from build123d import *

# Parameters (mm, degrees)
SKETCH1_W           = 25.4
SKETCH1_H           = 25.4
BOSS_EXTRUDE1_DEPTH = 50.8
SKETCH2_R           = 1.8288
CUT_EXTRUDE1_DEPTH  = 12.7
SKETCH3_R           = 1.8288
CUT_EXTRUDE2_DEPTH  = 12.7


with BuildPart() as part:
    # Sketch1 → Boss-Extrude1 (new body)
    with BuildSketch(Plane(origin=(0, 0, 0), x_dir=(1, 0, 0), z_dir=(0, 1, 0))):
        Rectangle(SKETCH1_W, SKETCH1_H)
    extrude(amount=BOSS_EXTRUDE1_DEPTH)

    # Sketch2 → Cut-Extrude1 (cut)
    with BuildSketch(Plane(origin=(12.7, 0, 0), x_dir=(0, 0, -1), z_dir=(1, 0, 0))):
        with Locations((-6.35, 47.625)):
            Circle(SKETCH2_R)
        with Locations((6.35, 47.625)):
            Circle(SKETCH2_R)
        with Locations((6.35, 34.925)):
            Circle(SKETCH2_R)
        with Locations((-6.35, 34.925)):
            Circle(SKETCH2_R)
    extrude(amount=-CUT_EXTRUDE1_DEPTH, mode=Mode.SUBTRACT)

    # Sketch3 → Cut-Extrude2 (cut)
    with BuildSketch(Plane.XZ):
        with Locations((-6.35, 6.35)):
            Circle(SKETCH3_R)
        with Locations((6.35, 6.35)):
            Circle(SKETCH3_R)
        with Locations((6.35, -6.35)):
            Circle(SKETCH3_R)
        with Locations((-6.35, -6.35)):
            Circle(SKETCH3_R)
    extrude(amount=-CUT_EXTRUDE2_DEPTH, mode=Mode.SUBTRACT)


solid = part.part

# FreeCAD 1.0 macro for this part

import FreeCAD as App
import Part
import Sketcher

V = App.Vector
Q = App.Units.Quantity

doc = App.newDocument("Part")
body = doc.addObject("PartDesign::Body", "Body")

sketch1 = doc.addObject("Sketcher::SketchObject", "Sketch")
body.addObject(sketch1)
sketch1.AttachmentSupport = (doc.XZ_Plane, [""])
sketch1.MapMode = "FlatFace"
sketch1.addGeometry([
    Part.LineSegment(V(-13, -13, 0), V(-13, 13, 0)),
    Part.LineSegment(V(-13, 13, 0), V(13, 13, 0)),
    Part.LineSegment(V(13, 13, 0), V(13, -13, 0)),
    Part.LineSegment(V(13, -13, 0), V(-13, -13, 0)),
], False)
sketch1.addConstraint([
    Sketcher.Constraint("Coincident", 0, 2, 1, 1),
    Sketcher.Constraint("Coincident", 1, 2, 2, 1),
    Sketcher.Constraint("Coincident", 2, 2, 3, 1),
    Sketcher.Constraint("Coincident", 3, 2, 0, 1),
    Sketcher.Constraint("Vertical", 0),
    Sketcher.Constraint("Horizontal", 1),
    Sketcher.Constraint("Vertical", 2),
    Sketcher.Constraint("Horizontal", 3),
    Sketcher.Constraint("Symmetric", 0, 2, 2, 2, -1, 1),
    Sketcher.Constraint("Equal", 3, 0),
    Sketcher.Constraint("DistanceX", 1, 1, 1, 2, Q("1 in")),
])
pad1 = doc.addObject("PartDesign::Pad", "Pad")
body.addObject(pad1)
pad1.Profile = sketch1
pad1.Length = Q("2 in")
pad1.Reversed = True

sketch2 = doc.addObject("Sketcher::SketchObject", "Sketch001")
body.addObject(sketch2)
sketch2.AttachmentSupport = (doc.YZ_Plane, [""])
sketch2.MapMode = "FlatFace"
sketch2.AttachmentOffset = App.Placement(V(0, 0, 0.5 * 25.4), App.Rotation())
sketch2.addGeometry([
    Part.Circle(V(47.6, 6.3, 0), V(0, 0, 1), 1.8),
    Part.Circle(V(47.6, -6.3, 0), V(0, 0, 1), 1.8),
    Part.Circle(V(34.9, -6.3, 0), V(0, 0, 1), 1.8),
    Part.Circle(V(34.9, 6.3, 0), V(0, 0, 1), 1.8),
], False)
sketch2.addConstraint([
    Sketcher.Constraint("Equal", 0, 1),
    Sketcher.Constraint("Equal", 1, 2),
    Sketcher.Constraint("Equal", 2, 3),
    Sketcher.Constraint("Symmetric", 0, 3, 1, 3, -1),
    Sketcher.Constraint("Symmetric", 2, 3, 3, 3, -1),
    Sketcher.Constraint("Horizontal", 1, 3, 2, 3),
    Sketcher.Constraint("Diameter", 0, Q("0.144 in")),
    Sketcher.Constraint("DistanceY", 1, 3, 0, 3, Q("0.5 in")),
    Sketcher.Constraint("DistanceX", 2, 3, 1, 3, Q("0.5 in")),
    Sketcher.Constraint("DistanceX", -1, 1, 0, 3, Q("1.875 in")),
])
pocket1 = doc.addObject("PartDesign::Pocket", "Pocket")
body.addObject(pocket1)
pocket1.Profile = sketch2
pocket1.Length = Q("0.5 in")

sketch3 = doc.addObject("Sketcher::SketchObject", "Sketch002")
body.addObject(sketch3)
sketch3.AttachmentSupport = (doc.XZ_Plane, [""])
sketch3.MapMode = "FlatFace"
sketch3.addGeometry([
    Part.Circle(V(-6.3, 6.3, 0), V(0, 0, 1), 1.8),
    Part.Circle(V(6.3, 6.3, 0), V(0, 0, 1), 1.8),
    Part.Circle(V(6.3, -6.3, 0), V(0, 0, 1), 1.8),
    Part.Circle(V(-6.3, -6.3, 0), V(0, 0, 1), 1.8),
], False)
sketch3.addConstraint([
    Sketcher.Constraint("Equal", 0, 1),
    Sketcher.Constraint("Equal", 1, 2),
    Sketcher.Constraint("Equal", 2, 3),
    Sketcher.Constraint("Symmetric", 0, 3, 2, 3, -1, 1),
    Sketcher.Constraint("Symmetric", 1, 3, 3, 3, -1, 1),
    Sketcher.Constraint("Symmetric", 0, 3, 1, 3, -2),
    Sketcher.Constraint("Diameter", 0, Q("0.144 in")),
    Sketcher.Constraint("DistanceX", 0, 3, 1, 3, Q("0.5 in")),
    Sketcher.Constraint("DistanceY", 2, 3, 1, 3, Q("0.5 in")),
])
pocket2 = doc.addObject("PartDesign::Pocket", "Pocket001")
body.addObject(pocket2)
pocket2.Profile = sketch3
pocket2.Length = Q("0.5 in")

doc.recompute()
